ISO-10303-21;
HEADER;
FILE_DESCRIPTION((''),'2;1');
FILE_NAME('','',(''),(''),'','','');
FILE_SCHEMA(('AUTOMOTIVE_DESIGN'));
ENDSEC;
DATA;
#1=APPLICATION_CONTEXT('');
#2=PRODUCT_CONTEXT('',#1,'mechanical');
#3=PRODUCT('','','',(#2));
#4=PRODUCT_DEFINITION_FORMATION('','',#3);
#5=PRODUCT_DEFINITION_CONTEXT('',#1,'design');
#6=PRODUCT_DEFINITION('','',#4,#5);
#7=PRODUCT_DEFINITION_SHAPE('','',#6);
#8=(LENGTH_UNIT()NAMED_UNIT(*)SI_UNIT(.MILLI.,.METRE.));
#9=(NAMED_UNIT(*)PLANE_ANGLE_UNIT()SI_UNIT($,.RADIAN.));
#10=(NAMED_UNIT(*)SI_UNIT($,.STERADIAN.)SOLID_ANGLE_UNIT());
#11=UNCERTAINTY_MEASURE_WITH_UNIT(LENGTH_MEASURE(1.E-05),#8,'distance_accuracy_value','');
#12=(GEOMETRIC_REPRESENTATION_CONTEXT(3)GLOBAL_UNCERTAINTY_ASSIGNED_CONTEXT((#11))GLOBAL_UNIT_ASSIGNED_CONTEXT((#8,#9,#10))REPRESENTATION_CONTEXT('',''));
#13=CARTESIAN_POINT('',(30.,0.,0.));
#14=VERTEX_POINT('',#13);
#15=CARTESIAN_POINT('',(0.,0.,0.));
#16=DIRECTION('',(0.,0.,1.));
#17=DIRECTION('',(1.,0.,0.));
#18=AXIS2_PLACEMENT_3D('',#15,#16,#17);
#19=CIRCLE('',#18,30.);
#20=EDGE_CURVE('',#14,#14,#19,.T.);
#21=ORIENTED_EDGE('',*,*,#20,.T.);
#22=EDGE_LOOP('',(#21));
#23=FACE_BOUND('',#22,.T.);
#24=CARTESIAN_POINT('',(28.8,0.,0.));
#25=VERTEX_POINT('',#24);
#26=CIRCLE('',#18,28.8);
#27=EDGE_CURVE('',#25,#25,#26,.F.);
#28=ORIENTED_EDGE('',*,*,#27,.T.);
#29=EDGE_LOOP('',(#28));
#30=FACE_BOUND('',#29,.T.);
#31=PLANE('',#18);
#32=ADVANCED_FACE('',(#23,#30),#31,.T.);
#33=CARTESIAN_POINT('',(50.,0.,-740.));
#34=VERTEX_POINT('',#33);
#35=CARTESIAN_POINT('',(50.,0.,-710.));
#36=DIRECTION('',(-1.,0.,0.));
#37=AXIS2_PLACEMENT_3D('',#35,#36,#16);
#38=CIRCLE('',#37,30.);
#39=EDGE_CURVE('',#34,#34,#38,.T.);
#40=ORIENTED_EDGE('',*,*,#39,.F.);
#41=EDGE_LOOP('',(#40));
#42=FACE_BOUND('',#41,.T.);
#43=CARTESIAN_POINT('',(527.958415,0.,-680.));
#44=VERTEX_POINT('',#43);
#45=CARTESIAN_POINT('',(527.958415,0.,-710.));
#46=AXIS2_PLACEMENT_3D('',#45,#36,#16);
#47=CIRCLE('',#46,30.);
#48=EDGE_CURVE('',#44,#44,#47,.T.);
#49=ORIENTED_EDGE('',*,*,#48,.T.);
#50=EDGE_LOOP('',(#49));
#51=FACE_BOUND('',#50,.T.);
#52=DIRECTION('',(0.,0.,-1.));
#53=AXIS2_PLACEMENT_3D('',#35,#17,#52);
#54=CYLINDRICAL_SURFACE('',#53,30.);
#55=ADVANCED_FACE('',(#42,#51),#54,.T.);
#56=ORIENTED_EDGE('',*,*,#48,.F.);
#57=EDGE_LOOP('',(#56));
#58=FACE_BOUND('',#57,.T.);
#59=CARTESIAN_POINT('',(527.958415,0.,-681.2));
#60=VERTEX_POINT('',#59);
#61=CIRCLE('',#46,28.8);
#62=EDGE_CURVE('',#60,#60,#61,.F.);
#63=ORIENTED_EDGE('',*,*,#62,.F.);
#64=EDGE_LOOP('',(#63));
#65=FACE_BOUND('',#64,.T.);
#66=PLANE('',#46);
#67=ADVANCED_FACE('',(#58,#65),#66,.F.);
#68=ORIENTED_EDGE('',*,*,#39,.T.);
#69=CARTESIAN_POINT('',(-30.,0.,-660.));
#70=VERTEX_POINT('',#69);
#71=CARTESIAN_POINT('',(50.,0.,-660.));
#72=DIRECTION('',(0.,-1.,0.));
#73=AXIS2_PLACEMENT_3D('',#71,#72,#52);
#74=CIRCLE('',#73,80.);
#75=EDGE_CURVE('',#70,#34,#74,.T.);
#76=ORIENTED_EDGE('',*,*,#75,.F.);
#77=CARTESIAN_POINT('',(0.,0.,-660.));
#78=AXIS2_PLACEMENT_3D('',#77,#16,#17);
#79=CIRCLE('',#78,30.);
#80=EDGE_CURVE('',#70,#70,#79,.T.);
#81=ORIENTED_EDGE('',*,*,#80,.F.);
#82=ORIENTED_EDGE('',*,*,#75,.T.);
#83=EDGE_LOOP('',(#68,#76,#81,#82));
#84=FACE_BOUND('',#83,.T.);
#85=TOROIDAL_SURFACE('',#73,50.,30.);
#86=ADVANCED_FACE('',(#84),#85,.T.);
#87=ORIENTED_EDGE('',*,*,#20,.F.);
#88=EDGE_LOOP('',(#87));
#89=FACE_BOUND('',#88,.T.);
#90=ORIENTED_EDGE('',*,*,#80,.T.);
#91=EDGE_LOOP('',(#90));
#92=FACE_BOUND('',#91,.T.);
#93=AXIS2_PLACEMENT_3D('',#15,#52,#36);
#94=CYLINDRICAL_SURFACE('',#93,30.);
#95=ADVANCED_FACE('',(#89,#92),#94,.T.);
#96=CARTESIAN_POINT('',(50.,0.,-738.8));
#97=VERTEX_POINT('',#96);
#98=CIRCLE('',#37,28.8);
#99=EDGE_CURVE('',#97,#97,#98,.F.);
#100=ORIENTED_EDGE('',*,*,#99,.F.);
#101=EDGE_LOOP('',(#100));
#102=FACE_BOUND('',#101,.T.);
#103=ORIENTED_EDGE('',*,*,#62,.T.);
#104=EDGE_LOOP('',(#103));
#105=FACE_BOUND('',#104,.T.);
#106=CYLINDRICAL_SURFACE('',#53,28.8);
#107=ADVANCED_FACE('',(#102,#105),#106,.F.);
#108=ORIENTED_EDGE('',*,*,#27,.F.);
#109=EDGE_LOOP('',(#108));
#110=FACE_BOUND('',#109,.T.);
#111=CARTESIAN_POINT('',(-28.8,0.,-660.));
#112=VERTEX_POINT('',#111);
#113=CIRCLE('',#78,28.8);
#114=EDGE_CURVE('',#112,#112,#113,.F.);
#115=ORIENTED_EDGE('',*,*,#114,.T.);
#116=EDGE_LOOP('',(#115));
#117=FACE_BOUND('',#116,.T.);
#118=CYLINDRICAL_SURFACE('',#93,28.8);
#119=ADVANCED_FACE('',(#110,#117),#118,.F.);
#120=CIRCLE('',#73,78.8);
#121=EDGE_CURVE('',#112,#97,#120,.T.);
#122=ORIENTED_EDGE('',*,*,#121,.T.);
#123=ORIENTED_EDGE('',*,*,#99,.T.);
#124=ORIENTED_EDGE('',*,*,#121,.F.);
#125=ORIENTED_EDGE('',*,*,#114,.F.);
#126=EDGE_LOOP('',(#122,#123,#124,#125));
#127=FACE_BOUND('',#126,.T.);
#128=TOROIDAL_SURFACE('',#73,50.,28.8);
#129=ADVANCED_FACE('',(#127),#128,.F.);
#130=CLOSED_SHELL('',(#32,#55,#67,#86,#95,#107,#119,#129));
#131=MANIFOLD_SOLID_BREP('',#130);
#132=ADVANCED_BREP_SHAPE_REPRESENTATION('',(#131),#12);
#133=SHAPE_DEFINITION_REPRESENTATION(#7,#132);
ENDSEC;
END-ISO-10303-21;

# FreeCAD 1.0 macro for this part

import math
import FreeCAD as App
import Part
import Sketcher

V = App.Vector
Q = App.Units.Quantity

doc = App.newDocument("Part")
params = doc.addObject("Spreadsheet::Sheet", "Params")
for row, (alias, value) in enumerate([
    ("sketch1_diameter", "60 mm"),
    ("sketch1_diameter2", "57.6 mm"),
    ("sketch2_radius", "50 mm"),
    ("sketch2_height", "660 mm"),
], start=1):
    params.set(f"A{row}", alias)
    params.set(f"B{row}", "=" + value)
    params.setAlias(f"B{row}", alias)

body = doc.addObject("PartDesign::Body", "Body")

# Sketch on XY plane
sketch1 = body.newObject("Sketcher::SketchObject", "Sketch")
sketch1.AttachmentSupport = (doc.getObject("XY_Plane"), [""])
sketch1.MapMode = "FlatFace"
sketch1.addGeometry([
    Part.Circle(V(0, 0, 0), V(0, 0, 1), 30),
    Part.Circle(V(0, 0, 0), V(0, 0, 1), 29),
], False)
sketch1.addConstraint([
    Sketcher.Constraint("Coincident", 0, 3, -1, 1),
    Sketcher.Constraint("Coincident", 1, 3, -1, 1),
    Sketcher.Constraint("Diameter", 0, Q("60 mm")),
    Sketcher.Constraint("Diameter", 1, Q("57.6 mm")),
])
sketch1.setExpression("Constraints[2]", "Params.sketch1_diameter")
sketch1.setExpression("Constraints[3]", "Params.sketch1_diameter2")

# Sketch on XZ plane
sketch2 = body.newObject("Sketcher::SketchObject", "Sketch001")
sketch2.AttachmentSupport = (doc.getObject("XZ_Plane"), [""])
sketch2.MapMode = "FlatFace"
sketch2.addGeometry([
    Part.LineSegment(V(0, 0, 0), V(0, -660, 0)),
    Part.ArcOfCircle(Part.Circle(V(50, -660, 0), V(0, 0, 1), 50), math.radians(-180), math.radians(-90)),
    Part.LineSegment(V(50, -710, 0), V(528, -710, 0)),
], False)
sketch2.addConstraint([
    Sketcher.Constraint("Tangent", 0, 2, 1, 1),
    Sketcher.Constraint("Tangent", 1, 2, 2, 1),
    Sketcher.Constraint("Vertical", 0),
    Sketcher.Constraint("Horizontal", 2),
    Sketcher.Constraint("Coincident", 0, 1, -1, 1),
    Sketcher.Constraint("Radius", 1, Q("50 mm")),
    Sketcher.Constraint("DistanceY", 0, 2, 0, 1, Q("660 mm")),
    Sketcher.Constraint("DistanceX", 2, 1, 2, 2, Q("477.958415 mm")),
])
sketch2.setExpression("Constraints[5]", "Params.sketch2_radius")
sketch2.setExpression("Constraints[6]", "Params.sketch2_height")
doc.recompute()

additivepipe = body.newObject("PartDesign::AdditivePipe", "AdditivePipe")
additivepipe.Profile = sketch1
additivepipe.Spine = (sketch2, ["Edge1", "Edge2", "Edge3"])

doc.recompute()
